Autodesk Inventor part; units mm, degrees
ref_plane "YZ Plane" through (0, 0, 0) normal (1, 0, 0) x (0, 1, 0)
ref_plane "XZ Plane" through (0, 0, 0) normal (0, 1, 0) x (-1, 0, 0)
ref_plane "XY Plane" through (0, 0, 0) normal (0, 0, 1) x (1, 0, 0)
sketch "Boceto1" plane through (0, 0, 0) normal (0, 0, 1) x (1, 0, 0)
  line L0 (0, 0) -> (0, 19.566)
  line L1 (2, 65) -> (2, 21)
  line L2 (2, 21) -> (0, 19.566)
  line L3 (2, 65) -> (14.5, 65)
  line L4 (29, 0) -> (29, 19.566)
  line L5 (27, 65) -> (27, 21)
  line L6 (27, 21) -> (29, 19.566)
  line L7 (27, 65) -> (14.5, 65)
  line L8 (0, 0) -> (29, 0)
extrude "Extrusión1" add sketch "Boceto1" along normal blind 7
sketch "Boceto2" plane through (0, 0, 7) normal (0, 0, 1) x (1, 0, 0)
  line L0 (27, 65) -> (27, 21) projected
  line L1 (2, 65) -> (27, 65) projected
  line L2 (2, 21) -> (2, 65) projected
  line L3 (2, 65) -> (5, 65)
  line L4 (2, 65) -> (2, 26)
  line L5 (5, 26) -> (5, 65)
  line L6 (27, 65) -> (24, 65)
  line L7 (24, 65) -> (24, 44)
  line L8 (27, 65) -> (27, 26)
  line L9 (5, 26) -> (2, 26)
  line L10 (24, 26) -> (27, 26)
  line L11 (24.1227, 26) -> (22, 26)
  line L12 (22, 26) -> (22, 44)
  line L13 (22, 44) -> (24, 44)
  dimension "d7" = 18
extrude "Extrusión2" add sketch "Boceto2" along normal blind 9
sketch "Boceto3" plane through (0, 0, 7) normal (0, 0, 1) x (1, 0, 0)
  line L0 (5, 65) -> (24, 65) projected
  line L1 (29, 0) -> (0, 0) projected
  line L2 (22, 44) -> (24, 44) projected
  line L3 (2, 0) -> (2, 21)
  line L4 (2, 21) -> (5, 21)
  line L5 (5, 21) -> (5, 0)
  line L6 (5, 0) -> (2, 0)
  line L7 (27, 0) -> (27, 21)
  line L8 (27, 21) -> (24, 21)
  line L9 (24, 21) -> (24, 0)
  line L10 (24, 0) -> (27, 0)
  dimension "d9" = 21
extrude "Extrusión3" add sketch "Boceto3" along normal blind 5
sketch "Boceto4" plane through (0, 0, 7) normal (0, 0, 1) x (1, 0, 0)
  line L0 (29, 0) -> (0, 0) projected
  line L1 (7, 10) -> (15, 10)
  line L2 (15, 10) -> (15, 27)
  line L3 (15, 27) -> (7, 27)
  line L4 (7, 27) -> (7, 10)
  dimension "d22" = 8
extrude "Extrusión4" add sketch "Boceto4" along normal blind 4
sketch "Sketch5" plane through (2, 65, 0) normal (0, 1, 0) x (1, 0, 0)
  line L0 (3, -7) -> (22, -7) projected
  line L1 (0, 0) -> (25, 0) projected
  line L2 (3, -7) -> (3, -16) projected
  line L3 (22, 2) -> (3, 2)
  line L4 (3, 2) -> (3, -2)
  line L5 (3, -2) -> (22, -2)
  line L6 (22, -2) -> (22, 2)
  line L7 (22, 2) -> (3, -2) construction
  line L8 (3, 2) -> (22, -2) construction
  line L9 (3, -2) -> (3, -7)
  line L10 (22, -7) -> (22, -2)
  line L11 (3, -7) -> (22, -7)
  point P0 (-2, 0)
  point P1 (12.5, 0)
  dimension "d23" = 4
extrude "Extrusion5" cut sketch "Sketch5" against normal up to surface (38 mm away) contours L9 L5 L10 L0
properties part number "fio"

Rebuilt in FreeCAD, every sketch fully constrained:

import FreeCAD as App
import Part
import Sketcher

V = App.Vector
Q = App.Units.Quantity

doc = App.newDocument("Part")
body = doc.addObject("PartDesign::Body", "Body")

sketch1 = body.newObject("Sketcher::SketchObject", "Sketch")
sketch1.AttachmentSupport = (doc.getObject("XY_Plane"), [""])
sketch1.MapMode = "FlatFace"
sketch1.addGeometry([
    Part.LineSegment(V(0, 19.6, 0), V(0, 0, 0)),
    Part.LineSegment(V(0, 0, 0), V(29, 0, 0)),
    Part.LineSegment(V(29, 0, 0), V(29, 19.6, 0)),
    Part.LineSegment(V(29, 19.6, 0), V(27, 21, 0)),
    Part.LineSegment(V(27, 21, 0), V(27, 65, 0)),
    Part.LineSegment(V(27, 65, 0), V(2, 65, 0)),
    Part.LineSegment(V(2, 65, 0), V(2, 21, 0)),
    Part.LineSegment(V(2, 21, 0), V(0, 19.6, 0)),
], False)
sketch1.addConstraint([
    Sketcher.Constraint("Coincident", 0, 2, 1, 1),
    Sketcher.Constraint("Coincident", 1, 2, 2, 1),
    Sketcher.Constraint("Coincident", 2, 2, 3, 1),
    Sketcher.Constraint("Coincident", 3, 2, 4, 1),
    Sketcher.Constraint("Coincident", 4, 2, 5, 1),
    Sketcher.Constraint("Coincident", 5, 2, 6, 1),
    Sketcher.Constraint("Coincident", 6, 2, 7, 1),
    Sketcher.Constraint("Coincident", 7, 2, 0, 1),
    Sketcher.Constraint("Vertical", 0),
    Sketcher.Constraint("Horizontal", 1),
    Sketcher.Constraint("Vertical", 2),
    Sketcher.Constraint("Vertical", 4),
    Sketcher.Constraint("Horizontal", 5),
    Sketcher.Constraint("Vertical", 6),
    Sketcher.Constraint("Coincident", 0, 2, -1, 1),
    Sketcher.Constraint("Horizontal", 3, 2, 6, 2),
    Sketcher.Constraint("Horizontal", 2, 2, 7, 2),
    Sketcher.Constraint("Equal", 3, 7),
    Sketcher.Constraint("DistanceX", 1, 1, 1, 2, 29.0),
    Sketcher.Constraint("DistanceX", 5, 2, 5, 1, 25.0),
    Sketcher.Constraint("DistanceY", 4, 1, 4, 2, 44.0),
    Sketcher.Constraint("DistanceY", -1, 1, 3, 2, 21.0),
    Sketcher.Constraint("Angle", 3, Q("144.3595 deg")),
])
pad1 = body.newObject("PartDesign::Pad", "Pad")
pad1.Profile = sketch1
pad1.Length = 7

sketch2 = body.newObject("Sketcher::SketchObject", "Sketch001")
sketch2.AttachmentSupport = (doc.getObject("XY_Plane"), [""])
sketch2.MapMode = "FlatFace"
sketch2.AttachmentOffset = App.Placement(V(0, 0, 7), App.Rotation())
sketch2.addGeometry([
    Part.LineSegment(V(5, 26, 0), V(5, 65, 0)),
    Part.LineSegment(V(5, 65, 0), V(2, 65, 0)),
    Part.LineSegment(V(2, 65, 0), V(2, 26, 0)),
    Part.LineSegment(V(2, 26, 0), V(5, 26, 0)),
    Part.LineSegment(V(27, 26, 0), V(27, 65, 0)),
    Part.LineSegment(V(27, 65, 0), V(24, 65, 0)),
    Part.LineSegment(V(24, 65, 0), V(24, 44, 0)),
    Part.LineSegment(V(24, 44, 0), V(22, 44, 0)),
    Part.LineSegment(V(22, 44, 0), V(22, 26, 0)),
    Part.LineSegment(V(22, 26, 0), V(27, 26, 0)),
], False)
sketch2.addConstraint([
    Sketcher.Constraint("Coincident", 0, 2, 1, 1),
    Sketcher.Constraint("Coincident", 1, 2, 2, 1),
    Sketcher.Constraint("Coincident", 2, 2, 3, 1),
    Sketcher.Constraint("Coincident", 3, 2, 0, 1),
    Sketcher.Constraint("Coincident", 4, 2, 5, 1),
    Sketcher.Constraint("Coincident", 5, 2, 6, 1),
    Sketcher.Constraint("Coincident", 6, 2, 7, 1),
    Sketcher.Constraint("Coincident", 7, 2, 8, 1),
    Sketcher.Constraint("Coincident", 8, 2, 9, 1),
    Sketcher.Constraint("Coincident", 9, 2, 4, 1),
    Sketcher.Constraint("Vertical", 0),
    Sketcher.Constraint("Horizontal", 1),
    Sketcher.Constraint("Vertical", 2),
    Sketcher.Constraint("Horizontal", 3),
    Sketcher.Constraint("Vertical", 4),
    Sketcher.Constraint("Horizontal", 5),
    Sketcher.Constraint("Vertical", 6),
    Sketcher.Constraint("Horizontal", 7),
    Sketcher.Constraint("Vertical", 8),
    Sketcher.Constraint("Horizontal", 9),
    Sketcher.Constraint("Horizontal", 1, 2, 4, 2),
    Sketcher.Constraint("Horizontal", 3, 2, 8, 2),
    Sketcher.Constraint("Equal", 3, 5),
    Sketcher.Constraint("DistanceY", 8, 2, 8, 1, 18.0),
    Sketcher.Constraint("DistanceX", 1, 2, 1, 1, 3.0),
    Sketcher.Constraint("DistanceX", 7, 2, 7, 1, 2.0),
    Sketcher.Constraint("DistanceY", 0, 1, 0, 2, 39.0),
    Sketcher.Constraint("DistanceX", -1, 1, 0, 2, 5.0),
    Sketcher.Constraint("DistanceY", -1, 1, 0, 2, 65.0),
    Sketcher.Constraint("DistanceX", -1, 1, 4, 2, 27.0),
])
pad2 = body.newObject("PartDesign::Pad", "Pad001")
pad2.Profile = sketch2
pad2.Length = 9

sketch3 = body.newObject("Sketcher::SketchObject", "Sketch002")
sketch3.AttachmentSupport = (doc.getObject("XY_Plane"), [""])
sketch3.MapMode = "FlatFace"
sketch3.AttachmentOffset = App.Placement(V(0, 0, 7), App.Rotation())
sketch3.addGeometry([
    Part.LineSegment(V(2, 0, 0), V(5, 0, 0)),
    Part.LineSegment(V(5, 0, 0), V(5, 21, 0)),
    Part.LineSegment(V(5, 21, 0), V(2, 21, 0)),
    Part.LineSegment(V(2, 21, 0), V(2, 0, 0)),
    Part.LineSegment(V(24, 0, 0), V(27, 0, 0)),
    Part.LineSegment(V(27, 0, 0), V(27, 21, 0)),
    Part.LineSegment(V(27, 21, 0), V(24, 21, 0)),
    Part.LineSegment(V(24, 21, 0), V(24, 0, 0)),
], False)
sketch3.addConstraint([
    Sketcher.Constraint("Coincident", 0, 2, 1, 1),
    Sketcher.Constraint("Coincident", 1, 2, 2, 1),
    Sketcher.Constraint("Coincident", 2, 2, 3, 1),
    Sketcher.Constraint("Coincident", 3, 2, 0, 1),
    Sketcher.Constraint("Coincident", 4, 2, 5, 1),
    Sketcher.Constraint("Coincident", 5, 2, 6, 1),
    Sketcher.Constraint("Coincident", 6, 2, 7, 1),
    Sketcher.Constraint("Coincident", 7, 2, 4, 1),
    Sketcher.Constraint("Horizontal", 0),
    Sketcher.Constraint("Vertical", 1),
    Sketcher.Constraint("Horizontal", 2),
    Sketcher.Constraint("Vertical", 3),
    Sketcher.Constraint("Horizontal", 4),
    Sketcher.Constraint("Vertical", 5),
    Sketcher.Constraint("Horizontal", 6),
    Sketcher.Constraint("Vertical", 7),
    Sketcher.Constraint("PointOnObject", 0, 2, -1),
    Sketcher.Constraint("PointOnObject", 4, 2, -1),
    Sketcher.Constraint("Horizontal", 2, 2, 5, 2),
    Sketcher.Constraint("Equal", 2, 4),
    Sketcher.Constraint("DistanceY", 1, 1, 1, 2, 21.0),
    Sketcher.Constraint("DistanceX", 0, 1, 0, 2, 3.0),
    Sketcher.Constraint("DistanceX", -1, 1, 0, 2, 5.0),
    Sketcher.Constraint("DistanceX", -1, 1, 4, 2, 27.0),
])
pad3 = body.newObject("PartDesign::Pad", "Pad002")
pad3.Profile = sketch3
pad3.Length = 5

sketch4 = body.newObject("Sketcher::SketchObject", "Sketch003")
sketch4.AttachmentSupport = (doc.getObject("XY_Plane"), [""])
sketch4.MapMode = "FlatFace"
sketch4.AttachmentOffset = App.Placement(V(0, 0, 7), App.Rotation())
sketch4.addGeometry([
    Part.LineSegment(V(7, 27, 0), V(7, 10, 0)),
    Part.LineSegment(V(7, 10, 0), V(15, 10, 0)),
    Part.LineSegment(V(15, 10, 0), V(15, 27, 0)),
    Part.LineSegment(V(15, 27, 0), V(7, 27, 0)),
], False)
sketch4.addConstraint([
    Sketcher.Constraint("Coincident", 0, 2, 1, 1),
    Sketcher.Constraint("Coincident", 1, 2, 2, 1),
    Sketcher.Constraint("Coincident", 2, 2, 3, 1),
    Sketcher.Constraint("Coincident", 3, 2, 0, 1),
    Sketcher.Constraint("Vertical", 0),
    Sketcher.Constraint("Horizontal", 1),
    Sketcher.Constraint("Vertical", 2),
    Sketcher.Constraint("Horizontal", 3),
    Sketcher.Constraint("DistanceX", 1, 1, 1, 2, 8.0),
    Sketcher.Constraint("DistanceY", 0, 2, 0, 1, 17.0),
    Sketcher.Constraint("DistanceX", -1, 1, 0, 2, 7.0),
    Sketcher.Constraint("DistanceY", -1, 1, 0, 2, 10.0),
])
pad4 = body.newObject("PartDesign::Pad", "Pad003")
pad4.Profile = sketch4
pad4.Length = 4

sketch5 = body.newObject("Sketcher::SketchObject", "Sketch004")
sketch5.AttachmentSupport = (doc.getObject("XZ_Plane"), [""])
sketch5.MapMode = "FlatFace"
sketch5.AttachmentOffset = App.Placement(V(0, 0, -65), App.Rotation())
sketch5.addGeometry([
    Part.LineSegment(V(5, 2, 0), V(5, 7, 0)),
    Part.LineSegment(V(5, 7, 0), V(24, 7, 0)),
    Part.LineSegment(V(24, 7, 0), V(24, 2, 0)),
    Part.LineSegment(V(24, 2, 0), V(5, 2, 0)),
], False)
sketch5.addConstraint([
    Sketcher.Constraint("Coincident", 0, 2, 1, 1),
    Sketcher.Constraint("Coincident", 1, 2, 2, 1),
    Sketcher.Constraint("Coincident", 2, 2, 3, 1),
    Sketcher.Constraint("Coincident", 3, 2, 0, 1),
    Sketcher.Constraint("Vertical", 0),
    Sketcher.Constraint("Horizontal", 1),
    Sketcher.Constraint("Vertical", 2),
    Sketcher.Constraint("Horizontal", 3),
    Sketcher.Constraint("DistanceX", 1, 1, 1, 2, 19.0),
    Sketcher.Constraint("DistanceY", 0, 1, 0, 2, 5.0),
    Sketcher.Constraint("DistanceX", -1, 1, 0, 2, 5.0),
    Sketcher.Constraint("DistanceY", -1, 1, 0, 2, 7.0),
])
pocket1 = body.newObject("PartDesign::Pocket", "Pocket")
pocket1.Profile = sketch5
pocket1.Length = 38
pocket1.Reversed = True

doc.recompute()
